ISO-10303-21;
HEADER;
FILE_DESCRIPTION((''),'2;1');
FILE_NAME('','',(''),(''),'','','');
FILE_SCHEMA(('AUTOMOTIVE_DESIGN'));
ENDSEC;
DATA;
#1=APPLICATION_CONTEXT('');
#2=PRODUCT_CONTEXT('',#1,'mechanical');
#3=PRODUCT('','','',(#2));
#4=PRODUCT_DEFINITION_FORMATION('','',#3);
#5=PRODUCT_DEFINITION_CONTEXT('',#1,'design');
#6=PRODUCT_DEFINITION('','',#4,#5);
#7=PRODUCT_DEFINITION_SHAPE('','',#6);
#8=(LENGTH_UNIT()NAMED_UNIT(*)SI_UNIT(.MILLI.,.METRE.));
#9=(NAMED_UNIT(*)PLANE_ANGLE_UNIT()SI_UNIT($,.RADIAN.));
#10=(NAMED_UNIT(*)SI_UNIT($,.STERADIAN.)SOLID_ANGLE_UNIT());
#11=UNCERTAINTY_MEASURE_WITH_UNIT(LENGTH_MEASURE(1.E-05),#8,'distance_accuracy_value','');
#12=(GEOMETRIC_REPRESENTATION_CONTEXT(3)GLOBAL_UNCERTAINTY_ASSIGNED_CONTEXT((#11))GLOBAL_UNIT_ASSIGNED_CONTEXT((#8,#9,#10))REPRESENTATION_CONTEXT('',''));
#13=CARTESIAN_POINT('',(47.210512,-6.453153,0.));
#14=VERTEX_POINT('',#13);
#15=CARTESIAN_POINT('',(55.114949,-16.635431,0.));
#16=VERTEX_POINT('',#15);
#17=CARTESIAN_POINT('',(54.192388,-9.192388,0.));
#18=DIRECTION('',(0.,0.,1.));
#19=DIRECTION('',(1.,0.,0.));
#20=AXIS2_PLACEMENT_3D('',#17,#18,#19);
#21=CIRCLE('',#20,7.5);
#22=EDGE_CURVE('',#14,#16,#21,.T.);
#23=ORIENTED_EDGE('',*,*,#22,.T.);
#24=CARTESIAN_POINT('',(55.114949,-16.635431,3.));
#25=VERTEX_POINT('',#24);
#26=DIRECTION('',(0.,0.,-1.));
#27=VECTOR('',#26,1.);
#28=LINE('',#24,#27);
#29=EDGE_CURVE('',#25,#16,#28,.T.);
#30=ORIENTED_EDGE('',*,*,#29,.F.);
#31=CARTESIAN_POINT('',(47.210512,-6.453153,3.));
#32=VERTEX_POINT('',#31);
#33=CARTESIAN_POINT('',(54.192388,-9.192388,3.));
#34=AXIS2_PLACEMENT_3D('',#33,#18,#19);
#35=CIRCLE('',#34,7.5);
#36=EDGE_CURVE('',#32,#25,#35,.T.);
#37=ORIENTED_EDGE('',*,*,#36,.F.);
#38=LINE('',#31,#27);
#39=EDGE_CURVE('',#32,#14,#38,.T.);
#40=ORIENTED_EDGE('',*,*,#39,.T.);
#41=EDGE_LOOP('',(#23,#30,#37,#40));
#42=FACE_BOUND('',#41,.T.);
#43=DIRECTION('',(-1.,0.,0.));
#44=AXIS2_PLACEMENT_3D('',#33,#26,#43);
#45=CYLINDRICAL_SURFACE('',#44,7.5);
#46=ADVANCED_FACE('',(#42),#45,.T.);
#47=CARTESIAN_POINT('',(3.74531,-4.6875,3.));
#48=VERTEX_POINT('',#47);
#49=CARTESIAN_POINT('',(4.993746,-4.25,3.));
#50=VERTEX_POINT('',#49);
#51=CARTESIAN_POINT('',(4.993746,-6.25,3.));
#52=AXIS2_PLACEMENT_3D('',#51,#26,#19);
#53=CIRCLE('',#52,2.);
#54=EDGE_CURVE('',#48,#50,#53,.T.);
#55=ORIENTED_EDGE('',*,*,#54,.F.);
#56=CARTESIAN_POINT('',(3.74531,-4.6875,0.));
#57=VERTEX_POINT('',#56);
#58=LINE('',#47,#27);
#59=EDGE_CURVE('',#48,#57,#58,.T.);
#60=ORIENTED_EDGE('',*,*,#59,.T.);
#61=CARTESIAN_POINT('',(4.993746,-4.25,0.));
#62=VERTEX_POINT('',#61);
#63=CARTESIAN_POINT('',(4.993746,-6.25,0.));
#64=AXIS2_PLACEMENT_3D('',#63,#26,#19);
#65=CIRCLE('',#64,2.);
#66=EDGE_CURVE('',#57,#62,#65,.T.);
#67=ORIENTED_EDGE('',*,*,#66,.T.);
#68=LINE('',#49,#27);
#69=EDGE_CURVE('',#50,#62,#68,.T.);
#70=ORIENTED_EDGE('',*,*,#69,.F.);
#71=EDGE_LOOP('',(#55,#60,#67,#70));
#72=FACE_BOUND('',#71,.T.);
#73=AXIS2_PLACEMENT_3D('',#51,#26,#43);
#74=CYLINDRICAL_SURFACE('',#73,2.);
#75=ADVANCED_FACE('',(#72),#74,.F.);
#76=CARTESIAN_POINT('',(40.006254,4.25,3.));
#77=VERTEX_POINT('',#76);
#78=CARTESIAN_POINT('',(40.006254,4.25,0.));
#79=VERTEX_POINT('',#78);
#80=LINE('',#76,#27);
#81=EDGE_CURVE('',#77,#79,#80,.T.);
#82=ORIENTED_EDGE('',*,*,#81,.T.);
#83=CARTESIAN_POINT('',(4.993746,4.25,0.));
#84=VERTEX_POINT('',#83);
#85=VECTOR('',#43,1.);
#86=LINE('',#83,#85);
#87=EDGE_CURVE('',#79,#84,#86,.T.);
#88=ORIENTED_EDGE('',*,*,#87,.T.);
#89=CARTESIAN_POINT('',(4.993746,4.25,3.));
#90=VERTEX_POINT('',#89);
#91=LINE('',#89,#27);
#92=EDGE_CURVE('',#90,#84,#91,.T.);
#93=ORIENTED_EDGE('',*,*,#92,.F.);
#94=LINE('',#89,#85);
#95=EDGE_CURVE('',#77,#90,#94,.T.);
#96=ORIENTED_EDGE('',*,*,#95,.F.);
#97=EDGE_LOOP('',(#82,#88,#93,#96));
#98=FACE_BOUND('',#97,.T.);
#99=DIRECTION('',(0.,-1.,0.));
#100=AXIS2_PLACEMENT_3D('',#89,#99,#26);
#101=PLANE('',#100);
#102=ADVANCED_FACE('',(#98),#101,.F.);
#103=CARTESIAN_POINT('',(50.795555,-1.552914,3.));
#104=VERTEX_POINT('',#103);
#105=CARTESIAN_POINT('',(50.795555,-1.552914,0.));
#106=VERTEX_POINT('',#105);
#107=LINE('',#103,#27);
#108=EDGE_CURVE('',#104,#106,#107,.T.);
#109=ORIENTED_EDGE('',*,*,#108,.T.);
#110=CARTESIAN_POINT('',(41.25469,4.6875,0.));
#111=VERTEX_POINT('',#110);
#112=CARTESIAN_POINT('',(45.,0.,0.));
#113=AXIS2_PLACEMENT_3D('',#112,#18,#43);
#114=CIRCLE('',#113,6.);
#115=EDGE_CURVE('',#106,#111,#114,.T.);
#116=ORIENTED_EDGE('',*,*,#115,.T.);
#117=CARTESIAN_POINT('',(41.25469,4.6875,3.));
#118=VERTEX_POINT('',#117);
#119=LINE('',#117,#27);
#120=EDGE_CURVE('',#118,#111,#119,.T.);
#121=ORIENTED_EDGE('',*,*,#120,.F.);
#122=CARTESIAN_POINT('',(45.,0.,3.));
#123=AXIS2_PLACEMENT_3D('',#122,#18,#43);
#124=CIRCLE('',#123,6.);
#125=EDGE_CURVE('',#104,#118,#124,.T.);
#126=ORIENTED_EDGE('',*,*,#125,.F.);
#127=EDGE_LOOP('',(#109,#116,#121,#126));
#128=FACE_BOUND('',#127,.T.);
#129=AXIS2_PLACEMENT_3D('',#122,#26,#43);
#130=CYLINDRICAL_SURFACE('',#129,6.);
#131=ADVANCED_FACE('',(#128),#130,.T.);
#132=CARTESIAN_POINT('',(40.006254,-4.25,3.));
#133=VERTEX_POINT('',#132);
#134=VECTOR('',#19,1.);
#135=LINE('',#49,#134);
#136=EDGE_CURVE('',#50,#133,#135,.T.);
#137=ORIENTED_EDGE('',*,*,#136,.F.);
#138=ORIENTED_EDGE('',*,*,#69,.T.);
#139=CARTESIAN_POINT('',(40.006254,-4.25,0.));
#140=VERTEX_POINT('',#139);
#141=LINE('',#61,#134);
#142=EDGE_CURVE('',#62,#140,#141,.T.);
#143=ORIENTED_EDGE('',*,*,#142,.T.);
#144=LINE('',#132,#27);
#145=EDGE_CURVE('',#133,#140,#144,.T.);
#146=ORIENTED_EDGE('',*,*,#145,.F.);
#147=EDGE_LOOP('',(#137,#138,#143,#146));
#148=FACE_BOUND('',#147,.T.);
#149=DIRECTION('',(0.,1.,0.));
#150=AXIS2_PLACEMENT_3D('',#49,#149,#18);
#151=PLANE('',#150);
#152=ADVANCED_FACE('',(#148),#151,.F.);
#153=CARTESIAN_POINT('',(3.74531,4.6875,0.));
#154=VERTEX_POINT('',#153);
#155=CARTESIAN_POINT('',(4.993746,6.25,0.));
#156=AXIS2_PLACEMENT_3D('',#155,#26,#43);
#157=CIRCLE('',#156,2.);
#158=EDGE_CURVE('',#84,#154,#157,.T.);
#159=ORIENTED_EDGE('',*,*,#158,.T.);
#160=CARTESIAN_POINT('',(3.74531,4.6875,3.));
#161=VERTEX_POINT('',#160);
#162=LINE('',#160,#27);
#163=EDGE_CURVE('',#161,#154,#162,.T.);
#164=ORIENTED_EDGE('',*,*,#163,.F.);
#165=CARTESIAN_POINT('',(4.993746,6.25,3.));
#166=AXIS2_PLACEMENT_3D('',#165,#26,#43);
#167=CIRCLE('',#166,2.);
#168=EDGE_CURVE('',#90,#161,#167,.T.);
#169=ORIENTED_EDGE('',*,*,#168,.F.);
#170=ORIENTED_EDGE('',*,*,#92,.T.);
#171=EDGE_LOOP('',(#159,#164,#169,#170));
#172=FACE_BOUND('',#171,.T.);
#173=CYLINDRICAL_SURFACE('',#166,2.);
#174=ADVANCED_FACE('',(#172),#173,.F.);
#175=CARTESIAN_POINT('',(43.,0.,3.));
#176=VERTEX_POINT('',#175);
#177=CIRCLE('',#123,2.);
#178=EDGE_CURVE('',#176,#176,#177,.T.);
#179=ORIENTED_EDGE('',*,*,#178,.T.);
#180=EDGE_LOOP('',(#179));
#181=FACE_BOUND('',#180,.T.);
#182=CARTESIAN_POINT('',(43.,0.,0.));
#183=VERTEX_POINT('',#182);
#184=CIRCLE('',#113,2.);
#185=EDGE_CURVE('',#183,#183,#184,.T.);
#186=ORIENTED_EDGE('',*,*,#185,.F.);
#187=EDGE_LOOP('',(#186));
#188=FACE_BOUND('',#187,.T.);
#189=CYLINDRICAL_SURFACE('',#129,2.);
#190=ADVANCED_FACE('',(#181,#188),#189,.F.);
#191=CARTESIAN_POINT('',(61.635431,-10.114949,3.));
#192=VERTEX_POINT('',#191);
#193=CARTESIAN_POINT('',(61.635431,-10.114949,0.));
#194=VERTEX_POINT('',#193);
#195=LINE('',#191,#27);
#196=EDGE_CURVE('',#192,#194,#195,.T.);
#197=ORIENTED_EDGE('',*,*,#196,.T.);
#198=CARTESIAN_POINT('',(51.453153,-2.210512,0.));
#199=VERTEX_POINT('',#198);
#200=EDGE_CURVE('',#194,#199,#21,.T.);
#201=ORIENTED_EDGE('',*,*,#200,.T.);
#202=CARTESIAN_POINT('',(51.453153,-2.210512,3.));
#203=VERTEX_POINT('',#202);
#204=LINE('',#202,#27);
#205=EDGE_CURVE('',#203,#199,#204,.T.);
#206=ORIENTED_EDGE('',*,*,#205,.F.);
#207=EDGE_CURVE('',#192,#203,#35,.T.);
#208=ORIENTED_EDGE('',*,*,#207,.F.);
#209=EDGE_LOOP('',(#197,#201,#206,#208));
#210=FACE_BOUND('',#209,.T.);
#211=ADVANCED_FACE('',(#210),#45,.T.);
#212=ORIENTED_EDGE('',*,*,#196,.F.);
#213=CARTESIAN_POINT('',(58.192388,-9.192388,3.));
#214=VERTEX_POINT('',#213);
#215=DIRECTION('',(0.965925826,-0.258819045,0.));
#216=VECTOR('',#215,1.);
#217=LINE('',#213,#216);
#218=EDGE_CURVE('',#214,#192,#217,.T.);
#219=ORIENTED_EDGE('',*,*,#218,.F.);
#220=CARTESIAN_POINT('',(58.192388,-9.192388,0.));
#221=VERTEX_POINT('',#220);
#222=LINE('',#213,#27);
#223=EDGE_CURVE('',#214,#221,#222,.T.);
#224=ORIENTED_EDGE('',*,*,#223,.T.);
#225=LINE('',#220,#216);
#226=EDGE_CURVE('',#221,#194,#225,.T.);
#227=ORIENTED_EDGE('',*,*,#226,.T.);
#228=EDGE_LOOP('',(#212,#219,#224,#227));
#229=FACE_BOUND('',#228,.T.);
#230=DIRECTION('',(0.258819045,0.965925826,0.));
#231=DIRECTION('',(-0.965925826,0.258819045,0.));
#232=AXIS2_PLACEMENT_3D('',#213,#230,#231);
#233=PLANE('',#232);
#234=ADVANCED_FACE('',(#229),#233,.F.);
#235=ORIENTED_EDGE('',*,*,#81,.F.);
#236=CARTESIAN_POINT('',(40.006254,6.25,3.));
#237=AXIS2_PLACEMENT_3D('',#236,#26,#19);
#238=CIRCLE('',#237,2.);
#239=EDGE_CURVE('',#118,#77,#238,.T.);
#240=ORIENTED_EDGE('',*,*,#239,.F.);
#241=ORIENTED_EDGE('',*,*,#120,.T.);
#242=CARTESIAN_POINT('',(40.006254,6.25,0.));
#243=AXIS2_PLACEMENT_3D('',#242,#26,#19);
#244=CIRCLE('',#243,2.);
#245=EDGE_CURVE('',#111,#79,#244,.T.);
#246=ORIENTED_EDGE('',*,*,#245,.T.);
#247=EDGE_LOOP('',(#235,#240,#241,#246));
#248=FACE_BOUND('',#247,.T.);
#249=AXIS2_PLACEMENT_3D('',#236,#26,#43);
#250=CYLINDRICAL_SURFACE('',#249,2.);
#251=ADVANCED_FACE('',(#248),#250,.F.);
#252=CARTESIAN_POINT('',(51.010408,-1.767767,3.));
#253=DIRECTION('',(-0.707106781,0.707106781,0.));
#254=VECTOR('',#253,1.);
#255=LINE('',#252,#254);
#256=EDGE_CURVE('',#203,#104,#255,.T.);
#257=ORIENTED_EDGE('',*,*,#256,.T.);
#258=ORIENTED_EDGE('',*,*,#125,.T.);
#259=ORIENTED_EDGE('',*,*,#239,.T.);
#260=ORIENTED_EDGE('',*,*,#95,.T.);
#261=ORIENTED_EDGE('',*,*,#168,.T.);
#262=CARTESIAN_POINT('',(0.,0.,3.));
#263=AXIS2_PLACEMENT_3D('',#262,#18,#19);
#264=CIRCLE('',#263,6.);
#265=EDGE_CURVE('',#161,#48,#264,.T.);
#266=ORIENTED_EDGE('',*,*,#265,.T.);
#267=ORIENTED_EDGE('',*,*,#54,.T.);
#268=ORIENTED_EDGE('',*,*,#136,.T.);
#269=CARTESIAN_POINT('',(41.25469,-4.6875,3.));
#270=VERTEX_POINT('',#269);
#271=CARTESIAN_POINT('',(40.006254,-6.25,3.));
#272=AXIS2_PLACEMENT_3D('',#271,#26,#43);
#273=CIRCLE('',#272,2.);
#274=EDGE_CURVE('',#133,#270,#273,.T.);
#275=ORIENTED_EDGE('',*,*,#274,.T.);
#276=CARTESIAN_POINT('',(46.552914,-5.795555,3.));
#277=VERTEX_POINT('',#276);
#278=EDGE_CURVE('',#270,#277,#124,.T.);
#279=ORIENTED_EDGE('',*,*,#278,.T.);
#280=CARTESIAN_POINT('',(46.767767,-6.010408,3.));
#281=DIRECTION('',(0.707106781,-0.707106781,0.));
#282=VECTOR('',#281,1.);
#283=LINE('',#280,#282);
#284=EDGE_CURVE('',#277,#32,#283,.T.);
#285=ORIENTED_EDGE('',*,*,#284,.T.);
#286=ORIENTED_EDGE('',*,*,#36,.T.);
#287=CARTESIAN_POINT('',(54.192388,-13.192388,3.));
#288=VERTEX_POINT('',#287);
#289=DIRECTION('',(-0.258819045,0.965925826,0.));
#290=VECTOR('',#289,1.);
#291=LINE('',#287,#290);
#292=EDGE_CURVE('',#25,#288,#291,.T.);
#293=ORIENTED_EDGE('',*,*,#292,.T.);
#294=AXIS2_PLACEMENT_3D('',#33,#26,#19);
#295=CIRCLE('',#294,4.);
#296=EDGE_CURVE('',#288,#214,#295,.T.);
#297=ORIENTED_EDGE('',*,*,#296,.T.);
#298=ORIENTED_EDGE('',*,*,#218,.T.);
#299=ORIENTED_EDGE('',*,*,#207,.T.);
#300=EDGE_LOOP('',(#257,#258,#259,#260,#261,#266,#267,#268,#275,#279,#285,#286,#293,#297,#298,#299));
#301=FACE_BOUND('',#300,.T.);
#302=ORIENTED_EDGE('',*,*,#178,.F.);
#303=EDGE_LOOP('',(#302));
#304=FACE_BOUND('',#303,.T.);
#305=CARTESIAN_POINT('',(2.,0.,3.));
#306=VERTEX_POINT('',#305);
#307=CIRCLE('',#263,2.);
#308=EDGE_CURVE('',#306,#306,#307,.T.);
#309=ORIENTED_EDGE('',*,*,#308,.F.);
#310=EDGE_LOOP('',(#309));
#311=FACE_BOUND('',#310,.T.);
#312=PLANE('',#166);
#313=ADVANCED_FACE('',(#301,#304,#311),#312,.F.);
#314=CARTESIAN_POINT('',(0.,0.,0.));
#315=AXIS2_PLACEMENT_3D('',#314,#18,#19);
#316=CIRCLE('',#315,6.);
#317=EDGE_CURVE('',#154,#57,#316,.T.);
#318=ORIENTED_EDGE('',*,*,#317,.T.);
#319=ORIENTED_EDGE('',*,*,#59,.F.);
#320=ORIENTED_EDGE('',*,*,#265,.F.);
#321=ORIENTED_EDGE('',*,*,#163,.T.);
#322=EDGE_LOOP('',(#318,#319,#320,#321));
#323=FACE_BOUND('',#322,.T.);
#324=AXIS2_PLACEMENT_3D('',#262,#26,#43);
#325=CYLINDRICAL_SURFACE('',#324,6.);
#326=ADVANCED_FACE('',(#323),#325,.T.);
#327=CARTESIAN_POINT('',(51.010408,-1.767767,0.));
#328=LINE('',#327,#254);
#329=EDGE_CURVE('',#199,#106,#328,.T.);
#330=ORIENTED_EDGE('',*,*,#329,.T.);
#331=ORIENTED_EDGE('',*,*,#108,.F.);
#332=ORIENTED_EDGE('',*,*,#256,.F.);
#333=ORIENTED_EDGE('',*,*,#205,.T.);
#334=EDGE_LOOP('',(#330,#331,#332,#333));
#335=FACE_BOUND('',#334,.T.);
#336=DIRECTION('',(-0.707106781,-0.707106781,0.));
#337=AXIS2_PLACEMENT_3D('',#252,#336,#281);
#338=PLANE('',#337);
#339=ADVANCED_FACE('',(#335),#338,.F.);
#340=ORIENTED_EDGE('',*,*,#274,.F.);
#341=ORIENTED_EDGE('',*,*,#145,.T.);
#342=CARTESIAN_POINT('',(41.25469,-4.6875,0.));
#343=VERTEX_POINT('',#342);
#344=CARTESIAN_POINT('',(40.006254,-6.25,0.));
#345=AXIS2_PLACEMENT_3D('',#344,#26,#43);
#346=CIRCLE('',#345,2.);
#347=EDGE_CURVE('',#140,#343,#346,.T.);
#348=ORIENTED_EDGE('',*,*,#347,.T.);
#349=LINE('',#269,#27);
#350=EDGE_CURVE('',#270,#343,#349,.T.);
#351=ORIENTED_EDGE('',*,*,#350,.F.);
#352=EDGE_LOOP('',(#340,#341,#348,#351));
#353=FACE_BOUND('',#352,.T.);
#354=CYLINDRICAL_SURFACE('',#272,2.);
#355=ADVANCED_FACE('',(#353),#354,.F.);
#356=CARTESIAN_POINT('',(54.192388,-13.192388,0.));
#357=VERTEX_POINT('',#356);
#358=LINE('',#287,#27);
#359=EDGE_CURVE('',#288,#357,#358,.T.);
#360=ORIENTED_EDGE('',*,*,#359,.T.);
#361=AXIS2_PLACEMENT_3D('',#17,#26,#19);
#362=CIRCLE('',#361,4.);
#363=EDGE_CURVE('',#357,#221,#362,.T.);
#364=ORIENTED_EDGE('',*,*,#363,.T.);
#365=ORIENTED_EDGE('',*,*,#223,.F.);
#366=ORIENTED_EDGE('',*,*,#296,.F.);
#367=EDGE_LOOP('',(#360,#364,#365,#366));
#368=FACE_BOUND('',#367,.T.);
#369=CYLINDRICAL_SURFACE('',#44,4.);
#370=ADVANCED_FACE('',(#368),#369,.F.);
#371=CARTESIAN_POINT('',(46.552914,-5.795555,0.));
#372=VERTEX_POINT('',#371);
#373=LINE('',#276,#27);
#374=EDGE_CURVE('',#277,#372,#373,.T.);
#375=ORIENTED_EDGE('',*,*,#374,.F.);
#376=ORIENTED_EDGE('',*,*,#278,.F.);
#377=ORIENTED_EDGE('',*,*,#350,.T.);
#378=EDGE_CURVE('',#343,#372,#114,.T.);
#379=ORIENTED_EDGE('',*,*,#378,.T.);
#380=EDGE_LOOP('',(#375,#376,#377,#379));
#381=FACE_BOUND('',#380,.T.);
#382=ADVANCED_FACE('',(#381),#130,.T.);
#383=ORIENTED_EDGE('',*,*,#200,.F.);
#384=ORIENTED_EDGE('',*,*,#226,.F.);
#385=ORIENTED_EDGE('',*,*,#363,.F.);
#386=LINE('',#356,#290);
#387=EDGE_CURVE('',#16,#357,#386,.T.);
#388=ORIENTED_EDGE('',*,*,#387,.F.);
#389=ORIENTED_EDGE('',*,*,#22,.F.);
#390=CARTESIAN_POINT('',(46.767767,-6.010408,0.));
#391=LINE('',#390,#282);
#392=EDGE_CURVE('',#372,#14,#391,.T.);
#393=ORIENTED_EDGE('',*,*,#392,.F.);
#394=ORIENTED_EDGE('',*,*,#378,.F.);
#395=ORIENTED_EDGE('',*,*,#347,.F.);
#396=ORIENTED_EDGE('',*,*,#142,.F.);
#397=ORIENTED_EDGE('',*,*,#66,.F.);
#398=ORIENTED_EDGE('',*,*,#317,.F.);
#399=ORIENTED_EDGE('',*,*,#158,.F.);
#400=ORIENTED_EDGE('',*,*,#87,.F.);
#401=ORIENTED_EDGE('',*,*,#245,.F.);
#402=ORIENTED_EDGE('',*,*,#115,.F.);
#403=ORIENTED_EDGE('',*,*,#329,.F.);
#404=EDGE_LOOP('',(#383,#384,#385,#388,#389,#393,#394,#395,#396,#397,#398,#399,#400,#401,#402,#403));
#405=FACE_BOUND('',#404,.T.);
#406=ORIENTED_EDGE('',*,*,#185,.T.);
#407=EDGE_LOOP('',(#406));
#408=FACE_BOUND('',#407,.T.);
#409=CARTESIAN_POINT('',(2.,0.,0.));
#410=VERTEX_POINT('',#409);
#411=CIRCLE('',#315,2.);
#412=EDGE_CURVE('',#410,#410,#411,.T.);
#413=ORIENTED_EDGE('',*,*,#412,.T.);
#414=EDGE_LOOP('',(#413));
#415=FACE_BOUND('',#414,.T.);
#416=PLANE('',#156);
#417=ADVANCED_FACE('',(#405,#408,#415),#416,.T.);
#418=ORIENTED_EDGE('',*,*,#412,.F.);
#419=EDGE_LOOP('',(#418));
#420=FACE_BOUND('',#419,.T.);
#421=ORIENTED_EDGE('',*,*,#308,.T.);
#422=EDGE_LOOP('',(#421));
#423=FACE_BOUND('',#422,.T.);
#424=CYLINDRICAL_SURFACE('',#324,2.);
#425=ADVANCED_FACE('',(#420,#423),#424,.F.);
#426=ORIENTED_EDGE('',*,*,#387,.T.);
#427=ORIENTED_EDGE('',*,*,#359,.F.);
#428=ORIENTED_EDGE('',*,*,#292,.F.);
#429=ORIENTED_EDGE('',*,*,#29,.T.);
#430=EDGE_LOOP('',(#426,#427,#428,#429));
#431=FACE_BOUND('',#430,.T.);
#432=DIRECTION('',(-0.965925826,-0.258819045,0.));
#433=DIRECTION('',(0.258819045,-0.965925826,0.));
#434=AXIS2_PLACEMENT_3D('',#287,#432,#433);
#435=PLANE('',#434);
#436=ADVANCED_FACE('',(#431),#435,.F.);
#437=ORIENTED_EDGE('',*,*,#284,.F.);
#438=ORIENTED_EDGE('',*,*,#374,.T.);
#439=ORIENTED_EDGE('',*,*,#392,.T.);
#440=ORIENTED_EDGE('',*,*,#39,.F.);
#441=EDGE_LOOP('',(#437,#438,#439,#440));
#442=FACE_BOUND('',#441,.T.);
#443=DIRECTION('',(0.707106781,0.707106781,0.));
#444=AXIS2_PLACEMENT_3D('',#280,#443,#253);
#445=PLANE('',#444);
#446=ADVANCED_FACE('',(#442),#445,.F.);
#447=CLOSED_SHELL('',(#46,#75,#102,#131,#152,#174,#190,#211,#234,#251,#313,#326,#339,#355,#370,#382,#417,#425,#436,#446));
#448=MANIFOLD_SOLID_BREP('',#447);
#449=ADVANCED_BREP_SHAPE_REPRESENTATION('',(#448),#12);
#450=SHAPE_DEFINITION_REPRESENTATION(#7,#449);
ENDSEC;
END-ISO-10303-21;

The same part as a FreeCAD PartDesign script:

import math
import FreeCAD as App
import Part
import Sketcher
Q = App.Units.Quantity

doc = App.newDocument("Part")
params = doc.addObject("Spreadsheet::Sheet", "Params")
for row, (alias, value) in enumerate([
    ("sketch1_diameter", "4 mm"),
    ("sketch1_radius", "6 mm"),
    ("sketch1_radius2", "4 mm"),
    ("sketch1_radius3", "7.5 mm"),
    ("pad1_length", "3 mm"),
], start=1):
    params.set(f"A{row}", alias)
    params.set(f"B{row}", "=" + value)
    params.setAlias(f"B{row}", alias)

body = doc.addObject("PartDesign::Body", "Body")

# Sketch on XY plane
sketch1 = doc.addObject("Sketcher::SketchObject", "Sketch")
body.addObject(sketch1)
sketch1.AttachmentSupport = (doc.XY_Plane, [""])
sketch1.MapMode = "FlatFace"
sketch1.addGeometry([
    Part.LineSegment(App.Vector(40, 4.2, 0), App.Vector(5, 4.2, 0)),  # 0
    Part.ArcOfCircle(Part.Circle(App.Vector(5, 6.2, 0), App.Vector(0, 0, 1), 2), math.radians(-129), math.radians(-90)),  # 1
    Part.ArcOfCircle(Part.Circle(App.Vector(0, 0, 0), App.Vector(0, 0, 1), 6), math.radians(51), math.radians(309)),  # 2
    Part.ArcOfCircle(Part.Circle(App.Vector(5, -6.2, 0), App.Vector(0, 0, 1), 2), math.radians(90), math.radians(129)),  # 3
    Part.LineSegment(App.Vector(5, -4.2, 0), App.Vector(40, -4.2, 0)),  # 4
    Part.ArcOfCircle(Part.Circle(App.Vector(40, -6.2, 0), App.Vector(0, 0, 1), 2), math.radians(51), math.radians(90)),  # 5
    Part.ArcOfCircle(Part.Circle(App.Vector(45, 0, 0), App.Vector(0, 0, 1), 6), math.radians(-129), math.radians(-75)),  # 6
    Part.LineSegment(App.Vector(46.6, -5.8, 0), App.Vector(47.2, -6.5, 0)),  # 7
    Part.ArcOfCircle(Part.Circle(App.Vector(54.2, -9.2, 0), App.Vector(0, 0, 1), 7.5), math.radians(159), math.radians(277)),  # 8
    Part.LineSegment(App.Vector(55.1, -16.6, 0), App.Vector(54.2, -13.2, 0)),  # 9
    Part.ArcOfCircle(Part.Circle(App.Vector(54.2, -9.2, 0), App.Vector(0, 0, 1), 4), math.radians(0), math.radians(270)),  # 10
    Part.LineSegment(App.Vector(58.2, -9.2, 0), App.Vector(61.6, -10.1, 0)),  # 11
    Part.ArcOfCircle(Part.Circle(App.Vector(54.2, -9.2, 0), App.Vector(0, 0, 1), 7.5), math.radians(-7), math.radians(111)),  # 12
    Part.LineSegment(App.Vector(51.5, -2.2, 0), App.Vector(50.8, -1.6, 0)),  # 13
    Part.ArcOfCircle(Part.Circle(App.Vector(45, 0, 0), App.Vector(0, 0, 1), 6), math.radians(-15), math.radians(129)),  # 14
    Part.ArcOfCircle(Part.Circle(App.Vector(40, 6.2, 0), App.Vector(0, 0, 1), 2), math.radians(-90), math.radians(-51)),  # 15
    Part.Circle(App.Vector(45, 0, 0), App.Vector(0, 0, 1), 2),  # 16
    Part.Circle(App.Vector(0, 0, 0), App.Vector(0, 0, 1), 2),  # 17
], False)
sketch1.addConstraint([
    Sketcher.Constraint("Tangent", 0, 2, 1, 2),
    Sketcher.Constraint("Tangent", 1, 1, 2, 1),
    Sketcher.Constraint("Tangent", 2, 2, 3, 2),
    Sketcher.Constraint("Tangent", 3, 1, 4, 1),
    Sketcher.Constraint("Tangent", 4, 2, 5, 2),
    Sketcher.Constraint("Tangent", 5, 1, 6, 1),
    Sketcher.Constraint("Coincident", 6, 2, 7, 1),
    Sketcher.Constraint("Coincident", 7, 2, 8, 1),
    Sketcher.Constraint("Coincident", 8, 2, 9, 1),
    Sketcher.Constraint("Coincident", 9, 2, 10, 2),
    Sketcher.Constraint("Coincident", 10, 1, 11, 1),
    Sketcher.Constraint("Coincident", 11, 2, 12, 1),
    Sketcher.Constraint("Coincident", 12, 2, 13, 1),
    Sketcher.Constraint("Coincident", 13, 2, 14, 1),
    Sketcher.Constraint("Tangent", 14, 2, 15, 2),
    Sketcher.Constraint("Tangent", 15, 1, 0, 1),
    Sketcher.Constraint("Horizontal", 0),
    Sketcher.Constraint("Horizontal", 4),
    Sketcher.Constraint("Coincident", 2, 3, -1, 1),
    Sketcher.Constraint("Coincident", 17, 3, -1, 1),
    Sketcher.Constraint("Coincident", 10, 3, 8, 3),
    Sketcher.Constraint("Coincident", 12, 3, 8, 3),
    Sketcher.Constraint("Coincident", 14, 3, 6, 3),
    Sketcher.Constraint("Coincident", 16, 3, 6, 3),
    Sketcher.Constraint("Equal", 1, 3),
    Sketcher.Constraint("Equal", 3, 5),
    Sketcher.Constraint("Equal", 2, 6),
    Sketcher.Constraint("Equal", 8, 12),
    Sketcher.Constraint("Equal", 6, 14),
    Sketcher.Constraint("Equal", 5, 15),
    Sketcher.Constraint("Equal", 15, 16),
    Sketcher.Constraint("Equal", 16, 17),
    Sketcher.Constraint("Symmetric", 5, 3, 15, 3, -1),
    Sketcher.Constraint("Parallel", 7, 13),
    Sketcher.Constraint("Horizontal", 12, 3, 10, 1),
    Sketcher.Constraint("Vertical", 12, 3, 9, 2),
    Sketcher.Constraint("Equal", 9, 11),
    Sketcher.Constraint("Equal", 7, 13),
    Sketcher.Constraint("Diameter", 16, Q("4 mm")),
    Sketcher.Constraint("Radius", 2, Q("6 mm")),
    Sketcher.Constraint("Radius", 10, Q("4 mm")),
    Sketcher.Constraint("Radius", 8, Q("7.5 mm")),
    Sketcher.Constraint("Angle", 7, Q("-45 deg")),
    Sketcher.Constraint("Angle", 9, Q("105 deg")),
    Sketcher.Constraint("DistanceX", -1, 1, 6, 3, Q("45 mm")),
    Sketcher.Constraint("DistanceY", 3, 3, 1, 3, Q("12.5 mm")),
    Sketcher.Constraint("DistanceX", 6, 2, 7, 2, Q("0.657598 mm")),
    Sketcher.Constraint("DistanceX", -1, 1, 8, 3, Q("54.192388 mm")),
    Sketcher.Constraint("DistanceY", 8, 3, -1, 1, Q("9.192388 mm")),
])
sketch1.setExpression("Constraints[38]", "Params.sketch1_diameter")
sketch1.setExpression("Constraints[39]", "Params.sketch1_radius")
sketch1.setExpression("Constraints[40]", "Params.sketch1_radius2")
sketch1.setExpression("Constraints[41]", "Params.sketch1_radius3")
pad1 = doc.addObject("PartDesign::Pad", "Pad")
body.addObject(pad1)
pad1.Profile = sketch1
pad1.setExpression("Length", "Params.pad1_length")

doc.recompute()
